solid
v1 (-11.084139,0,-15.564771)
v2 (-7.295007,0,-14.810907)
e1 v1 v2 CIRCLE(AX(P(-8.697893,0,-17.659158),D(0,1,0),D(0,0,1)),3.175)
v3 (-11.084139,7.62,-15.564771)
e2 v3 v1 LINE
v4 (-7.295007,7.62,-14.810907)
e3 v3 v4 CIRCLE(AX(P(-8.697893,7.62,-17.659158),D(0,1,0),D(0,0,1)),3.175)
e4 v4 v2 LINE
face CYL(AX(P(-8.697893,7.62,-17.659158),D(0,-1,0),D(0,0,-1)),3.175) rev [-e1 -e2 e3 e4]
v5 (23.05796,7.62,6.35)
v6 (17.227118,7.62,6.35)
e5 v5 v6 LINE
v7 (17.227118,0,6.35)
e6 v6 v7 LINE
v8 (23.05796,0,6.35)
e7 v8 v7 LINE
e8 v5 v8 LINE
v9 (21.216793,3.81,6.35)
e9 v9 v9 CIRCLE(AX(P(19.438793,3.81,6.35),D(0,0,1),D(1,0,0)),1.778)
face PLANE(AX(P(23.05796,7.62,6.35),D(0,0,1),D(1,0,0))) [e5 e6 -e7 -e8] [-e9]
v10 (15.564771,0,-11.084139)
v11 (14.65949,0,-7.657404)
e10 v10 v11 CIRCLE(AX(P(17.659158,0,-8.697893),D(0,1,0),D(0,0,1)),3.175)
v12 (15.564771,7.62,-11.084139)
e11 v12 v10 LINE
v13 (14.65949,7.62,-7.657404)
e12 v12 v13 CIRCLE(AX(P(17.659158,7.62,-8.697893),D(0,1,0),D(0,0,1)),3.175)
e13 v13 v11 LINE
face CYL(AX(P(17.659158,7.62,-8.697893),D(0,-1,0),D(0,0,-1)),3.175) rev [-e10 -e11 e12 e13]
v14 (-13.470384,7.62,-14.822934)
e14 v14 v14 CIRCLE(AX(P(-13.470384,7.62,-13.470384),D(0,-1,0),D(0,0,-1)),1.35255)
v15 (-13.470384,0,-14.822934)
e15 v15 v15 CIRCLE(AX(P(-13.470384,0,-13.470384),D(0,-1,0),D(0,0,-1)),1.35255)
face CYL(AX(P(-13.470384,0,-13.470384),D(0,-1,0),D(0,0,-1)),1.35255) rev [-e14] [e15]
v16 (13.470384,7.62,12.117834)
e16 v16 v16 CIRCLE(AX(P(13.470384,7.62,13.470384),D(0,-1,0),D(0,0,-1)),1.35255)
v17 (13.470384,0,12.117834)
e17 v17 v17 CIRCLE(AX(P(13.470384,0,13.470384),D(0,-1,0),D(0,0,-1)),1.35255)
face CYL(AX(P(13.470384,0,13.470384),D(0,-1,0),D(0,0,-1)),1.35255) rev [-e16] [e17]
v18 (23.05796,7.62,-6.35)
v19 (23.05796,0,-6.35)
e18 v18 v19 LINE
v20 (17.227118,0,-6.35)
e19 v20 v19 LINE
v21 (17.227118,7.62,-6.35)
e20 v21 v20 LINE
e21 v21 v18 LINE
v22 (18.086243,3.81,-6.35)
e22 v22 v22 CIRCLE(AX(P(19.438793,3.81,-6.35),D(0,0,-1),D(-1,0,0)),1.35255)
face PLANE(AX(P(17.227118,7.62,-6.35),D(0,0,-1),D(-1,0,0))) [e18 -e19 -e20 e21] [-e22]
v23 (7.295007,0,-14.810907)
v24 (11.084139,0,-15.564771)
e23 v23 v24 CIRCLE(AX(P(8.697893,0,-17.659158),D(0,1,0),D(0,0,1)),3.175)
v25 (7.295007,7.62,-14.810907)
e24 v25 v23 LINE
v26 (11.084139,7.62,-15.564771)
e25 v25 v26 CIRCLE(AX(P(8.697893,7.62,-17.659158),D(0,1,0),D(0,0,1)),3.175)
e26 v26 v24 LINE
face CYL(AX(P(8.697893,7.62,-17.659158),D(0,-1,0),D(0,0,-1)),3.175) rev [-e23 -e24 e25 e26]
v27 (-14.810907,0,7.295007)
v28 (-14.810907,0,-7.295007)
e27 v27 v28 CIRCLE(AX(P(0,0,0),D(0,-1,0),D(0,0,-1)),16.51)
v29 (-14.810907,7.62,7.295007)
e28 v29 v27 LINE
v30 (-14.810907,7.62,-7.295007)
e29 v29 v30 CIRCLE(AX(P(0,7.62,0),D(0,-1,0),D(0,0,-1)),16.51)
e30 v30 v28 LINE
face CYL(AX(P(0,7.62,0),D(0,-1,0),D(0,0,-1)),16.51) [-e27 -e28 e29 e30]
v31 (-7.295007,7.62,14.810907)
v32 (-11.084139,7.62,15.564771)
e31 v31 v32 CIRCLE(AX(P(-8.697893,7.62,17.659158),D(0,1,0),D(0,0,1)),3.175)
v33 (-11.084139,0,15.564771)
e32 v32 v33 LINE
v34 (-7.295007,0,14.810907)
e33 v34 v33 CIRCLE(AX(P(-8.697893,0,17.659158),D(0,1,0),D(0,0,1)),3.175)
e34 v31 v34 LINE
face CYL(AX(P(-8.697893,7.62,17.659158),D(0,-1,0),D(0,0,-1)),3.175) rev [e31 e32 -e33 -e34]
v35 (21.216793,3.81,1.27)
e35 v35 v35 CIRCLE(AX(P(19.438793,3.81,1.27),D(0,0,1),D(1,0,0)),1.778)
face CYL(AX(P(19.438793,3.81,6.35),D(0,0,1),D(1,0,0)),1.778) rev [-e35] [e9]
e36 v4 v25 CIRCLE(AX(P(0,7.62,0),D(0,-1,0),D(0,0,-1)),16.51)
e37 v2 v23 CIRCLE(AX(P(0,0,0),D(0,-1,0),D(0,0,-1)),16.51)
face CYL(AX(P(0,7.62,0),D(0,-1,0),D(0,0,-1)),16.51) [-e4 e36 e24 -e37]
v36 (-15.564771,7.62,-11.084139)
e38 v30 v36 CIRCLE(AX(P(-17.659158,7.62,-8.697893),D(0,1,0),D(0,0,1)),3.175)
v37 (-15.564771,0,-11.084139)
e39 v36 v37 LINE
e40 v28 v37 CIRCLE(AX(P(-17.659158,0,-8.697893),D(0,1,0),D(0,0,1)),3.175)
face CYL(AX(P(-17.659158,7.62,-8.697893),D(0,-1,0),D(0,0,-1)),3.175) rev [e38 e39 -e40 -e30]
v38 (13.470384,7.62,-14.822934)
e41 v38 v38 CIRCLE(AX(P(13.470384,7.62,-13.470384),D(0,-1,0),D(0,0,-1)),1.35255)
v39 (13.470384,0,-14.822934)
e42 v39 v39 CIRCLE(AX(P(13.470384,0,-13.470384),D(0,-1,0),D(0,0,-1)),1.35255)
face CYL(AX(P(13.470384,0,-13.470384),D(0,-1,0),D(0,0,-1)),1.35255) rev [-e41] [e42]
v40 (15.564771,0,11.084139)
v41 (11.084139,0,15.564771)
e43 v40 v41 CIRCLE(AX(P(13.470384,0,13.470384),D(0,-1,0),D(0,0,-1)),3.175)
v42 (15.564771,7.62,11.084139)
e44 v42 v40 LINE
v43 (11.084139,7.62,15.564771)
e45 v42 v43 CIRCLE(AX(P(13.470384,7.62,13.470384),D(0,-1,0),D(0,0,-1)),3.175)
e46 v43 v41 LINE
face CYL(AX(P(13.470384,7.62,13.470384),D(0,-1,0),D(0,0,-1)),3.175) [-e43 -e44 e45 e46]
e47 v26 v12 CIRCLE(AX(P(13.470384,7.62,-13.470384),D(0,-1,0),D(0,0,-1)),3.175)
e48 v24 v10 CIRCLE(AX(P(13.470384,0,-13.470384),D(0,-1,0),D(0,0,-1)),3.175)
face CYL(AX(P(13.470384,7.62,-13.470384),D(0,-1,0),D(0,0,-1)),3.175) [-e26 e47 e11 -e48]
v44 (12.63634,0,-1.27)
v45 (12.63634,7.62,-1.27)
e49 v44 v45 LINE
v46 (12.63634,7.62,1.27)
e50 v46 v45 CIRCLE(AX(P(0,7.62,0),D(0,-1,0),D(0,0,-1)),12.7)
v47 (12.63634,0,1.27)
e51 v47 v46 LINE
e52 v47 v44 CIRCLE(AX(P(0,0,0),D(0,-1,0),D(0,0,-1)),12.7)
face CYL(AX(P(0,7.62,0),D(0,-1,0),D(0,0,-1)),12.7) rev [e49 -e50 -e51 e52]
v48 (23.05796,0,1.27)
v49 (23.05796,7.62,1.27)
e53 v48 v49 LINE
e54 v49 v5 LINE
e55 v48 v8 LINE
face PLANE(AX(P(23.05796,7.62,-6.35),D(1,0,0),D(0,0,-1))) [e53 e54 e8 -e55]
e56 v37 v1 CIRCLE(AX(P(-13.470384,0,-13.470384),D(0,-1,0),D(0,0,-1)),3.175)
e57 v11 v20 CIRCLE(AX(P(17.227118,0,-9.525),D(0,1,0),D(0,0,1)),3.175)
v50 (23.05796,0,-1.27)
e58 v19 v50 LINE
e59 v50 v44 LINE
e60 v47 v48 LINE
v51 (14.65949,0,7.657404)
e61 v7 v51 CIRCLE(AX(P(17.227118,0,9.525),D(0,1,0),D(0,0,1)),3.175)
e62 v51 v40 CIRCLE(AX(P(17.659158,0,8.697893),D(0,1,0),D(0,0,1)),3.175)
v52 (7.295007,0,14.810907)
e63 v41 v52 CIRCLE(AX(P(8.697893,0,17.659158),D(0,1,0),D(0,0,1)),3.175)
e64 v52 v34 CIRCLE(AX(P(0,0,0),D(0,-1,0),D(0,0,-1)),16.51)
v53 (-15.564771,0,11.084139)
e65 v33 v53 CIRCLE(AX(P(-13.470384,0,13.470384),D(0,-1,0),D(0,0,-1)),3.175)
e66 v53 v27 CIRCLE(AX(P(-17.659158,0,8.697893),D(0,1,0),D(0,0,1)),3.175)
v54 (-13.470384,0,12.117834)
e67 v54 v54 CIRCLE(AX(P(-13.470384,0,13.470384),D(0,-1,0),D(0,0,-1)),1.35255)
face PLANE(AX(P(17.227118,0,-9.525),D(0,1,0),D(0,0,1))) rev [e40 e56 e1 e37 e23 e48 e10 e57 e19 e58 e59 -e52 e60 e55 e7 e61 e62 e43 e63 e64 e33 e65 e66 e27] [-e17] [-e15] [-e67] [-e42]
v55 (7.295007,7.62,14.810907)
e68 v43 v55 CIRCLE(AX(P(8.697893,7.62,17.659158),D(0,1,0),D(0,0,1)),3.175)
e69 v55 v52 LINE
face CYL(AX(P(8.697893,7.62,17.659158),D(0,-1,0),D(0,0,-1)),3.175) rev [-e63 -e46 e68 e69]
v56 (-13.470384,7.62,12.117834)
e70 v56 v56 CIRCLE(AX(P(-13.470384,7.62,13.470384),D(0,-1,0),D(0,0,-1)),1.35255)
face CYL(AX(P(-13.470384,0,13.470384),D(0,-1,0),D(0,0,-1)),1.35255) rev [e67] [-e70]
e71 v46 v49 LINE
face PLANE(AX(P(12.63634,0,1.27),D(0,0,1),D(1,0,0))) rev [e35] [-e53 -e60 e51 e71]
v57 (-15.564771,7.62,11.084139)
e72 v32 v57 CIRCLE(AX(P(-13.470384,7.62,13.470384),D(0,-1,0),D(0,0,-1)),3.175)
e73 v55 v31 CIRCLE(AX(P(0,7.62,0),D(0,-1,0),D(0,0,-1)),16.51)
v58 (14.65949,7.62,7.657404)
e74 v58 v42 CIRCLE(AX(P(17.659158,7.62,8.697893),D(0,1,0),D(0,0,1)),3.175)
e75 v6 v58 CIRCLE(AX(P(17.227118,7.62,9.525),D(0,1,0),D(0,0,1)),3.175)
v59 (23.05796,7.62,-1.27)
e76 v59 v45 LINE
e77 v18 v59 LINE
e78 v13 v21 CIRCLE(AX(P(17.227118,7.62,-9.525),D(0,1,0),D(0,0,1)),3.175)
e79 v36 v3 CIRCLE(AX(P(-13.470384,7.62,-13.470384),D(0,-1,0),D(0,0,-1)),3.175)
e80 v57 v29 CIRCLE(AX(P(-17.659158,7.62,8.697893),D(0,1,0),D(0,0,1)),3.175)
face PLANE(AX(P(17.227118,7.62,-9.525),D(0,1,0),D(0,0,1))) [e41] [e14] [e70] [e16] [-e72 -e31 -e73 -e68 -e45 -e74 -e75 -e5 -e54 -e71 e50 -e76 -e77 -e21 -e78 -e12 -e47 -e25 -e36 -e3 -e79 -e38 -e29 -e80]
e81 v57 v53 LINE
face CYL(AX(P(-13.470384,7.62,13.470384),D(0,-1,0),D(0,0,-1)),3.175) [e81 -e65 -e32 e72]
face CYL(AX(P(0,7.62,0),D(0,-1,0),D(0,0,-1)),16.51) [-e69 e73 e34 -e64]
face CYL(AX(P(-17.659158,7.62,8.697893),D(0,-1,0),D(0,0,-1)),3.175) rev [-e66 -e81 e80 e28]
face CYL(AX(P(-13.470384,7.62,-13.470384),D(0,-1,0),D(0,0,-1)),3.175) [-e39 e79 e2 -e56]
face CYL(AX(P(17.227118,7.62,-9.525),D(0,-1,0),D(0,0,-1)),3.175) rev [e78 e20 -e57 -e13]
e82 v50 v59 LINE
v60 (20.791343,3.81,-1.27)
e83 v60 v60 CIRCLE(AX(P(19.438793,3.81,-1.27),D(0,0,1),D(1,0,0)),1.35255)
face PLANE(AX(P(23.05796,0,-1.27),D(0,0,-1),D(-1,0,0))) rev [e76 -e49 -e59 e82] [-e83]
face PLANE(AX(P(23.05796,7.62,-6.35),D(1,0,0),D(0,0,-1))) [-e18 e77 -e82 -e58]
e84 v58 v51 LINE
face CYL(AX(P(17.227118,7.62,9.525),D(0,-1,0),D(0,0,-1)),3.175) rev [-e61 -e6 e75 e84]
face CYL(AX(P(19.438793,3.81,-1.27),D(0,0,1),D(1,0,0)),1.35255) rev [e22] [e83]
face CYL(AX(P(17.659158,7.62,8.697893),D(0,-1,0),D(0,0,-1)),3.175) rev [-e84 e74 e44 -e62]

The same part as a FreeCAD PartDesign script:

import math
import FreeCAD as App
import Part
import Sketcher
from FreeCAD import Vector
Q = App.Units.Quantity


def add_polygon(sketch, points):
    """Adds a closed chain of lines whose ends are joined by coincident constraints."""
    first, n = sketch.GeometryCount, len(points)
    for a, b in zip(points, points[1:] + points[:1]):
        sketch.addGeometry(Part.LineSegment(App.Vector(*a, 0), App.Vector(*b, 0)), False)
    for i in range(n):
        sketch.addConstraint(Sketcher.Constraint("Coincident", first + i, 2, first + (i + 1) % n, 1))

doc = App.newDocument("Part")
body = doc.addObject("PartDesign::Body", "Body")

sketch1 = body.newObject("Sketcher::SketchObject", "Sketch")
sketch1.AttachmentSupport = (doc.getObject("XZ_Plane"), [""])
sketch1.MapMode = "FlatFace"
sketch1.addGeometry([
    Part.LineSegment(Vector(17.2, -6.3, 0), Vector(23.1, -6.3, 0)),
    Part.LineSegment(Vector(23.1, -6.3, 0), Vector(23.1, 6.3, 0)),
    Part.LineSegment(Vector(23.1, 6.3, 0), Vector(17.2, 6.3, 0)),
    Part.ArcOfCircle(Part.Circle(Vector(17.2, 9.5, 0), Vector(0, 0, 1), 3.2), math.radians(-144), math.radians(-90)),
    Part.ArcOfCircle(Part.Circle(Vector(17.7, 8.7, 0), Vector(0, 0, 1), 3.2), math.radians(131), math.radians(199)),
    Part.ArcOfCircle(Part.Circle(Vector(13.5, 13.5, 0), Vector(0, 0, 1), 3.2), math.radians(-49), math.radians(139)),
    Part.ArcOfCircle(Part.Circle(Vector(8.7, 17.7, 0), Vector(0, 0, 1), 3.2), math.radians(-116), math.radians(-41)),
    Part.ArcOfCircle(Part.Circle(Vector(0, 0, 0), Vector(0, 0, 1), 16.5), math.radians(64), math.radians(116)),
    Part.ArcOfCircle(Part.Circle(Vector(-8.7, 17.7, 0), Vector(0, 0, 1), 3.2), math.radians(-139), math.radians(-64)),
    Part.ArcOfCircle(Part.Circle(Vector(-13.5, 13.5, 0), Vector(0, 0, 1), 3.2), math.radians(41), math.radians(229)),
    Part.ArcOfCircle(Part.Circle(Vector(-17.7, 8.7, 0), Vector(0, 0, 1), 3.2), math.radians(-26), math.radians(49)),
    Part.ArcOfCircle(Part.Circle(Vector(0, 0, 0), Vector(0, 0, 1), 16.5), math.radians(154), math.radians(206)),
    Part.ArcOfCircle(Part.Circle(Vector(-17.7, -8.7, 0), Vector(0, 0, 1), 3.2), math.radians(-49), math.radians(26)),
    Part.ArcOfCircle(Part.Circle(Vector(-13.5, -13.5, 0), Vector(0, 0, 1), 3.2), math.radians(131), math.radians(319)),
    Part.ArcOfCircle(Part.Circle(Vector(-8.7, -17.7, 0), Vector(0, 0, 1), 3.2), math.radians(64), math.radians(139)),
    Part.ArcOfCircle(Part.Circle(Vector(0, 0, 0), Vector(0, 0, 1), 16.5), math.radians(-116), math.radians(-64)),
    Part.ArcOfCircle(Part.Circle(Vector(8.7, -17.7, 0), Vector(0, 0, 1), 3.2), math.radians(41), math.radians(116)),
    Part.ArcOfCircle(Part.Circle(Vector(13.5, -13.5, 0), Vector(0, 0, 1), 3.2), math.radians(-139), math.radians(49)),
    Part.ArcOfCircle(Part.Circle(Vector(17.7, -8.7, 0), Vector(0, 0, 1), 3.2), math.radians(161), math.radians(229)),
    Part.ArcOfCircle(Part.Circle(Vector(17.2, -9.5, 0), Vector(0, 0, 1), 3.2), math.radians(90), math.radians(144)),
], False)
sketch1.addConstraint([
    Sketcher.Constraint("Coincident", 0, 2, 1, 1),
    Sketcher.Constraint("Coincident", 1, 2, 2, 1),
    Sketcher.Constraint("Tangent", 2, 2, 3, 2),
    Sketcher.Constraint("Coincident", 3, 1, 4, 2),
    Sketcher.Constraint("Tangent", 4, 1, 5, 1),
    Sketcher.Constraint("Tangent", 5, 2, 6, 2),
    Sketcher.Constraint("Tangent", 6, 1, 7, 1),
    Sketcher.Constraint("Tangent", 7, 2, 8, 2),
    Sketcher.Constraint("Tangent", 8, 1, 9, 1),
    Sketcher.Constraint("Tangent", 9, 2, 10, 2),
    Sketcher.Constraint("Tangent", 10, 1, 11, 1),
    Sketcher.Constraint("Tangent", 11, 2, 12, 2),
    Sketcher.Constraint("Tangent", 12, 1, 13, 1),
    Sketcher.Constraint("Tangent", 13, 2, 14, 2),
    Sketcher.Constraint("Tangent", 14, 1, 15, 1),
    Sketcher.Constraint("Tangent", 15, 2, 16, 2),
    Sketcher.Constraint("Tangent", 16, 1, 17, 1),
    Sketcher.Constraint("Tangent", 17, 2, 18, 2),
    Sketcher.Constraint("Coincident", 18, 1, 19, 2),
    Sketcher.Constraint("Tangent", 19, 1, 0, 1),
    Sketcher.Constraint("Horizontal", 0),
    Sketcher.Constraint("Vertical", 1),
    Sketcher.Constraint("Horizontal", 2),
    Sketcher.Constraint("Coincident", 7, 3, -1, 1),
    Sketcher.Constraint("Coincident", 11, 3, -1, 1),
    Sketcher.Constraint("Coincident", 15, 3, -1, 1),
    Sketcher.Constraint("Equal", 3, 4),
    Sketcher.Constraint("Equal", 4, 5),
    Sketcher.Constraint("Equal", 5, 6),
    Sketcher.Constraint("Equal", 6, 8),
    Sketcher.Constraint("Equal", 8, 9),
    Sketcher.Constraint("Equal", 9, 10),
    Sketcher.Constraint("Equal", 7, 11),
    Sketcher.Constraint("Equal", 10, 12),
    Sketcher.Constraint("Equal", 12, 13),
    Sketcher.Constraint("Equal", 13, 14),
    Sketcher.Constraint("Equal", 11, 15),
    Sketcher.Constraint("Equal", 14, 16),
    Sketcher.Constraint("Equal", 16, 17),
    Sketcher.Constraint("Equal", 17, 18),
    Sketcher.Constraint("Equal", 18, 19),
    Sketcher.Constraint("Symmetric", 4, 3, 12, 3, -1, 1),
    Sketcher.Constraint("Symmetric", 9, 3, 17, 3, -1, 1),
    Sketcher.Constraint("Symmetric", 5, 3, 9, 3, -2),
    Sketcher.Constraint("Symmetric", 3, 3, 19, 3, -1),
    Sketcher.Constraint("Horizontal", 14, 3, 16, 3),
    Sketcher.Constraint("Horizontal", 12, 3, 18, 3),
    Sketcher.Constraint("Radius", 7, Q("0.65 in")),
    Sketcher.Constraint("DistanceY", 1, 1, 1, 2, Q("0.5 in")),
    Sketcher.Constraint("Radius", 3, Q("0.125 in")),
    Sketcher.Constraint("DistanceX", 18, 3, 0, 2, Q("5.398802 mm")),
    Sketcher.Constraint("DistanceX", 7, 2, 6, 3, Q("15.9929 mm")),
    Sketcher.Constraint("DistanceY", 10, 1, 7, 2, Q("7.5159 mm")),
    Sketcher.Constraint("DistanceX", 0, 1, 0, 2, Q("5.830842 mm")),
])
pad1 = body.newObject("PartDesign::Pad", "Pad")
pad1.Profile = sketch1
pad1.Length = Q("0.3 in")
pad1.Reversed = True

sketch2 = body.newObject("Sketcher::SketchObject", "Sketch001")
sketch2.AttachmentSupport = (doc.getObject("XZ_Plane"), [""])
sketch2.MapMode = "FlatFace"
sketch2.AttachmentOffset = App.Placement(Vector(0, 0, -0.3 * 25.4), App.Rotation())
sketch2.addGeometry([
    Part.LineSegment(Vector(23.1, 1.3, 0), Vector(23.1, -1.3, 0)),
    Part.LineSegment(Vector(23.1, -1.3, 0), Vector(12.6, -1.3, 0)),
    Part.ArcOfCircle(Part.Circle(Vector(0, 0, 0), Vector(0, 0, 1), 12.7), math.radians(-5.74), math.radians(5.74)),
    Part.LineSegment(Vector(12.6, 1.3, 0), Vector(23.1, 1.3, 0)),
], False)
sketch2.addConstraint([
    Sketcher.Constraint("Coincident", 0, 2, 1, 1),
    Sketcher.Constraint("Coincident", 1, 2, 2, 1),
    Sketcher.Constraint("Coincident", 2, 2, 3, 1),
    Sketcher.Constraint("Coincident", 3, 2, 0, 1),
    Sketcher.Constraint("Vertical", 0),
    Sketcher.Constraint("Horizontal", 1),
    Sketcher.Constraint("Horizontal", 3),
    Sketcher.Constraint("Coincident", 2, 3, -1, 1),
    Sketcher.Constraint("Vertical", 1, 2, 2, 2),
    Sketcher.Constraint("Radius", 2, Q("0.5 in")),
    Sketcher.Constraint("DistanceY", 0, 2, 0, 1, Q("0.1 in")),
    Sketcher.Constraint("DistanceX", 1, 2, 1, 1, Q("0.4103 in")),
])
pocket1 = body.newObject("PartDesign::Pocket", "Pocket")
pocket1.Profile = sketch2
pocket1.Type = "ThroughAll"
pocket1.Reversed = True

sketch3 = body.newObject("Sketcher::SketchObject", "Sketch002")
sketch3.AttachmentSupport = (doc.getObject("XY_Plane"), [""])
sketch3.MapMode = "FlatFace"
add_polygon(sketch3, [(0, 8), (0, 0), (13, 0), (13, 8)])
sketch3.addConstraint([
    Sketcher.Constraint("Vertical", 0),
    Sketcher.Constraint("Horizontal", 1),
    Sketcher.Constraint("Vertical", 2),
    Sketcher.Constraint("Horizontal", 3),
    Sketcher.Constraint("Coincident", 0, 2, -1, 1),
    Sketcher.Constraint("DistanceX", 1, 1, 1, 2, Q("0.5 in")),
    Sketcher.Constraint("DistanceY", 0, 2, 0, 1, Q("0.3 in")),
])
groove = body.newObject("PartDesign::Groove", "Groove")
groove.Profile = sketch3
groove.ReferenceAxis = (sketch3, ["V_Axis"])
groove.Angle = 360

sketch4 = body.newObject("Sketcher::SketchObject", "Sketch003")
sketch4.AttachmentSupport = (doc.getObject("XZ_Plane"), [""])
sketch4.MapMode = "FlatFace"
sketch4.addGeometry([
    Part.Circle(Vector(13.5, 13.5, 0), Vector(0, 0, 1), 1.4),
    Part.Circle(Vector(-13.5, 13.5, 0), Vector(0, 0, 1), 1.4),
    Part.Circle(Vector(-13.5, -13.5, 0), Vector(0, 0, 1), 1.4),
    Part.Circle(Vector(13.5, -13.5, 0), Vector(0, 0, 1), 1.4),
], False)
sketch4.addConstraint([
    Sketcher.Constraint("Equal", 0, 1),
    Sketcher.Constraint("Equal", 1, 2),
    Sketcher.Constraint("Equal", 2, 3),
    Sketcher.Constraint("Symmetric", 0, 3, 2, 3, -1, 1),
    Sketcher.Constraint("Symmetric", 1, 3, 3, 3, -1, 1),
    Sketcher.Constraint("Symmetric", 0, 3, 1, 3, -2),
    Sketcher.Constraint("Diameter", 0, Q("0.1065 in")),
    Sketcher.Constraint("DistanceX", 1, 3, 0, 3, Q("26.940768 mm")),
    Sketcher.Constraint("DistanceY", 2, 3, 1, 3, Q("26.940768 mm")),
])
doc.recompute()
hole = body.newObject("PartDesign::Hole", "Hole")
hole.Profile = sketch4
hole.ThreadType = "None"
hole.Diameter = Q("0.1065 in")
hole.DepthType = "ThroughAll"

sketch5 = body.newObject("Sketcher::SketchObject", "Sketch004")
sketch5.AttachmentSupport = (doc.getObject("XY_Plane"), [""])
sketch5.MapMode = "FlatFace"
sketch5.AttachmentOffset = App.Placement(Vector(0, 0, 0.25 * 25.4), App.Rotation())
sketch5.addGeometry(Part.Circle(Vector(19.4, 3.8, 0), Vector(0, 0, 1), 1.8), False)
sketch5.addConstraint([
    Sketcher.Constraint("Diameter", 0, Q("0.14 in")),
    Sketcher.Constraint("DistanceY", -1, 1, 0, 3, Q("0.15 in")),
    Sketcher.Constraint("DistanceX", -1, 1, 0, 3, Q("19.438793 mm")),
])
doc.recompute()
hole2 = body.newObject("PartDesign::Hole", "Hole001")
hole2.Profile = sketch5
hole2.ThreadType = "None"
hole2.Diameter = Q("0.14 in")
hole2.DepthType = "Dimension"
hole2.Depth = Q("0.2 in")
hole2.DrillPoint = "Flat"

sketch6 = body.newObject("Sketcher::SketchObject", "Sketch005")
sketch6.AttachmentSupport = (doc.getObject("XY_Plane"), [""])
sketch6.MapMode = "FlatFace"
sketch6.AttachmentOffset = App.Placement(Vector(0, 0, -0.05 * 25.4), App.Rotation())
sketch6.addGeometry(Part.Circle(Vector(19.4, 3.8, 0), Vector(0, 0, 1), 1.4), False)
sketch6.addConstraint([
    Sketcher.Constraint("Diameter", 0, Q("0.1065 in")),
    Sketcher.Constraint("DistanceY", -1, 1, 0, 3, Q("0.15 in")),
    Sketcher.Constraint("DistanceX", -1, 1, 0, 3, Q("19.438793 mm")),
])
doc.recompute()
hole3 = body.newObject("PartDesign::Hole", "Hole002")
hole3.Profile = sketch6
hole3.ThreadType = "None"
hole3.Diameter = Q("0.1065 in")
hole3.DepthType = "Dimension"
hole3.Depth = 15.375384
hole3.DrillPoint = "Flat"

doc.recompute()
